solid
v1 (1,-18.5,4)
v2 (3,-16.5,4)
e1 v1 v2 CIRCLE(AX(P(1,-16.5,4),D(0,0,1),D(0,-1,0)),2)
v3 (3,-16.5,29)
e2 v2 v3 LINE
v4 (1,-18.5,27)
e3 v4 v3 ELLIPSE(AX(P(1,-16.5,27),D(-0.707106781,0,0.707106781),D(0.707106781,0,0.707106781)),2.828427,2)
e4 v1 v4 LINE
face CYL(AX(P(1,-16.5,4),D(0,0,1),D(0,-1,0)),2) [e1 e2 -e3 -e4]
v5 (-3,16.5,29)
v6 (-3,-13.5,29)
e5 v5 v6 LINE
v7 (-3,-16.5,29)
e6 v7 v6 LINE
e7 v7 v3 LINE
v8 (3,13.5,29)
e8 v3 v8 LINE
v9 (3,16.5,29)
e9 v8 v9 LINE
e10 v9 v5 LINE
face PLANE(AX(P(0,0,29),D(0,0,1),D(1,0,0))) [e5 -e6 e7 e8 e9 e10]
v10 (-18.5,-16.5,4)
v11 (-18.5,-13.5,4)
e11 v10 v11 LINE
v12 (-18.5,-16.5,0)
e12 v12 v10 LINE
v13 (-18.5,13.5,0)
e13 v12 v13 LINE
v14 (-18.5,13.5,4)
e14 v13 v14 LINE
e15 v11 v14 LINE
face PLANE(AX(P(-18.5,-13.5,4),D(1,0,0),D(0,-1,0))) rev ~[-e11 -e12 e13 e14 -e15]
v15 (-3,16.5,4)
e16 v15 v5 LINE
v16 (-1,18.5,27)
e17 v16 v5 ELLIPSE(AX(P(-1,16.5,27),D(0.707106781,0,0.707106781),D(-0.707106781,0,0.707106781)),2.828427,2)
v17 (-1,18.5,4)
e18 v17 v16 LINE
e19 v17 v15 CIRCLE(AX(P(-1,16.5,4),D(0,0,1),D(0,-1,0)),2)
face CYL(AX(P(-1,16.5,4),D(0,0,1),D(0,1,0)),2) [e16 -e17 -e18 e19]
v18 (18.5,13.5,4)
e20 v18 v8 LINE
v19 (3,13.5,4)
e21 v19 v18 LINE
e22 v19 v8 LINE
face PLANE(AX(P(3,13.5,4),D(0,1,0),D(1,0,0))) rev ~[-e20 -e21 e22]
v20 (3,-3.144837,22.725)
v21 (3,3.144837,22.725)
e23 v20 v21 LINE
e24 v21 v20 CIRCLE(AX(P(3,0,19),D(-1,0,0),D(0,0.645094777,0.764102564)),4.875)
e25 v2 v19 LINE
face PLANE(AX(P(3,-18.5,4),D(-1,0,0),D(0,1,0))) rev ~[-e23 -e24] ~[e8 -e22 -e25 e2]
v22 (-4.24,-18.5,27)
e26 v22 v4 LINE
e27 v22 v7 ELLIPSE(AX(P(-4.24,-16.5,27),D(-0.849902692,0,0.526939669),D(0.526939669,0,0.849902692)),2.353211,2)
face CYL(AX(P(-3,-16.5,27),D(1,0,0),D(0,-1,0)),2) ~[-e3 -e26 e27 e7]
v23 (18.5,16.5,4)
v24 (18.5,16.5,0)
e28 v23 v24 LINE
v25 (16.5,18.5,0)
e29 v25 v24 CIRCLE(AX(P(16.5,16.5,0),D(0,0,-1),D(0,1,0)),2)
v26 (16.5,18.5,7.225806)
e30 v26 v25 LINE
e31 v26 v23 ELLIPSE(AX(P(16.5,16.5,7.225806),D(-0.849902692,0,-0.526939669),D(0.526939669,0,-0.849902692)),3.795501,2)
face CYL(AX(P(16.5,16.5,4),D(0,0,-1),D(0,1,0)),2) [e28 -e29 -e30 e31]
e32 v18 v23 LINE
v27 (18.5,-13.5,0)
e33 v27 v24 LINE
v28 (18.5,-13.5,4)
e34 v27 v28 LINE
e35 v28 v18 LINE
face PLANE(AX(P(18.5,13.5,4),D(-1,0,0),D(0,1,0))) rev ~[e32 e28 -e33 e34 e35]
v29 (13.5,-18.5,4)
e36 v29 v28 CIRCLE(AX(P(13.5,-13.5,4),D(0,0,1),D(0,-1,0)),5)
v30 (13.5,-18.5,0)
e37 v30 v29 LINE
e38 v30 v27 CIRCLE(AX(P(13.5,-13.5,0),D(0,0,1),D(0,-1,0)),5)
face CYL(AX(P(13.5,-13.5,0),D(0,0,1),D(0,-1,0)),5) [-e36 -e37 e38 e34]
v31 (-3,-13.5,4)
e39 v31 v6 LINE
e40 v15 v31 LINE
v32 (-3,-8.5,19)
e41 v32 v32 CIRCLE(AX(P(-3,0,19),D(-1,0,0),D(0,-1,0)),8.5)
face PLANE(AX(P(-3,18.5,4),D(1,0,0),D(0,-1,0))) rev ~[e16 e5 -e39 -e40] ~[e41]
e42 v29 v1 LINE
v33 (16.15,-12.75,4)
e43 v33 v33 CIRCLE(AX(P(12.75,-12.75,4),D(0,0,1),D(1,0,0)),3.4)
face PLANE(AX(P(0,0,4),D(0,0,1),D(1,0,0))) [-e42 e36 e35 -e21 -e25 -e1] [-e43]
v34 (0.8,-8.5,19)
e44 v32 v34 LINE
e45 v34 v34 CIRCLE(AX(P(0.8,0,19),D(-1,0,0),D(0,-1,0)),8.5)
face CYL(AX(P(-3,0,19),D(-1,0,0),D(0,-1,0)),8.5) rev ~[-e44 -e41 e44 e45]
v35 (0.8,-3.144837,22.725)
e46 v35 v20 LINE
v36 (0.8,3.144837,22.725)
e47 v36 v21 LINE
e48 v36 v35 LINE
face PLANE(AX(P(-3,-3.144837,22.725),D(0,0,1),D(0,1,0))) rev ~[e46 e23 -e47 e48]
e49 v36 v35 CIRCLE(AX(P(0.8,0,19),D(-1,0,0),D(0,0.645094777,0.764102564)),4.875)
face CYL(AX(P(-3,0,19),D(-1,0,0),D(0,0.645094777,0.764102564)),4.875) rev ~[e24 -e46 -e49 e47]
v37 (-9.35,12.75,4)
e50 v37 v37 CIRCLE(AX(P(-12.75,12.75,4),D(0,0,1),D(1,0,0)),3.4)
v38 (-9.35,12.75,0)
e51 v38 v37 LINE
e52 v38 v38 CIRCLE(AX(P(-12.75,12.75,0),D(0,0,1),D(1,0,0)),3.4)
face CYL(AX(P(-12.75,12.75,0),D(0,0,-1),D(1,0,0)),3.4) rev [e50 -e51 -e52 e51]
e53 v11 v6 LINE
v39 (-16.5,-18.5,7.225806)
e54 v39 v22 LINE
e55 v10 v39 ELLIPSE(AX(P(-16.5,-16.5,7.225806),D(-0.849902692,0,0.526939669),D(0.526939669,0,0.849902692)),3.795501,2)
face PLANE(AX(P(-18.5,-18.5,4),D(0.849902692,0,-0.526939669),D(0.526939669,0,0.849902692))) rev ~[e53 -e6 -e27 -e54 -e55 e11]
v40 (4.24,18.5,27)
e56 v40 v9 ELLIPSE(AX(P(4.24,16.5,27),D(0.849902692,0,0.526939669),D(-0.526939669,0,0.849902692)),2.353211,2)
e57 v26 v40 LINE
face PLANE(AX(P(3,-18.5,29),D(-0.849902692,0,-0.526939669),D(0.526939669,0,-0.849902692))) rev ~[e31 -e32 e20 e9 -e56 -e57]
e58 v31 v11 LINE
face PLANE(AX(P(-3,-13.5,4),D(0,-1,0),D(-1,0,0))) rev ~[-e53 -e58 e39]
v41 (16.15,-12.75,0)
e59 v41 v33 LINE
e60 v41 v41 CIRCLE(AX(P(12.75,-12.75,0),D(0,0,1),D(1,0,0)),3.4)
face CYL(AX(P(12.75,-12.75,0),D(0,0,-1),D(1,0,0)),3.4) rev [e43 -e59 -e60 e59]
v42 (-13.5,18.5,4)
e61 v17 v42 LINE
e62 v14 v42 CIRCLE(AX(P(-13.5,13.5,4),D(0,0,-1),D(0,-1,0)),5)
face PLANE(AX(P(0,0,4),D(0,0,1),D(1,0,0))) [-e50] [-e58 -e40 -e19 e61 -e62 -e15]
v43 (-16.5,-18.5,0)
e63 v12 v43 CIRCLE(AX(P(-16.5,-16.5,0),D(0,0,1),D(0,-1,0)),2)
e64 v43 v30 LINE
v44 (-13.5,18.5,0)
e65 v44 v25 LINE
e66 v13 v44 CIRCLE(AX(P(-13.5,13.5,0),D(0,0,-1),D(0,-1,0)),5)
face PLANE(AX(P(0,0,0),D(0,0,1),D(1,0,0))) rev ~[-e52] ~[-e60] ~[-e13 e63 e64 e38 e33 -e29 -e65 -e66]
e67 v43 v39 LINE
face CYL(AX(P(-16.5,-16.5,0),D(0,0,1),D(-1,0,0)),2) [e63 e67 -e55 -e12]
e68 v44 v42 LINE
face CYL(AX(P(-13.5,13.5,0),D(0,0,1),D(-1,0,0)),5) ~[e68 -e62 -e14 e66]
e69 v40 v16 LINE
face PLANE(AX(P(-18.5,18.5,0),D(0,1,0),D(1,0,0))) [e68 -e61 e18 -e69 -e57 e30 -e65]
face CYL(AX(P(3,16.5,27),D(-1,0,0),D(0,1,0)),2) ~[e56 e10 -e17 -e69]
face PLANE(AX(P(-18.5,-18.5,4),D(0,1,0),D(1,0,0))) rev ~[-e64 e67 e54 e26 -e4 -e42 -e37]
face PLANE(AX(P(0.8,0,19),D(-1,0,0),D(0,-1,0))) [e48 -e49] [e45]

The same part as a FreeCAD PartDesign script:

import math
import FreeCAD as App
import Part
import Sketcher

V = App.Vector


def edges_at(feature, points):
    """Names of the edges that pass closest to the given points."""
    edges = feature.Shape.Edges
    near = lambda p: min(range(len(edges)), key=lambda i: edges[i].distToShape(Part.Vertex(*p))[0])
    return sorted({f"Edge{near(p) + 1}" for p in points})


def add_polygon(sketch, points):
    """Adds a closed chain of lines whose ends are joined by coincident constraints."""
    first, n = sketch.GeometryCount, len(points)
    for a, b in zip(points, points[1:] + points[:1]):
        sketch.addGeometry(Part.LineSegment(App.Vector(*a, 0), App.Vector(*b, 0)), False)
    for i in range(n):
        sketch.addConstraint(Sketcher.Constraint("Coincident", first + i, 2, first + (i + 1) % n, 1))

doc = App.newDocument("Part")
params = doc.addObject("Spreadsheet::Sheet", "Params")
for row, (alias, value) in enumerate([
    ("sketch1_diameter", "6.8 mm"),
    ("sketch1_width", "37 mm"),
    ("pad1_length", "4 mm"),
    ("sketch2_height", "5 mm"),
    ("sketch2_height2", "32 mm"),
    ("sketch2_width", "21.5 mm"),
    ("sketch2_width2", "15.5 mm"),
    ("pad2_length", "25 mm"),
    ("sketch3_height", "25 mm"),
    ("sketch3_width", "15.5 mm"),
    ("sketch5_diameter", "17 mm"),
    ("pocket3_length", "3.8 mm"),
    ("fillet_radius", "5 mm"),
    ("fillet2_radius", "2 mm"),
], start=1):
    params.set(f"A{row}", alias)
    params.set(f"B{row}", "=" + value)
    params.setAlias(f"B{row}", alias)

body = doc.addObject("PartDesign::Body", "Body")

sketch1 = doc.addObject("Sketcher::SketchObject", "Sketch")
body.addObject(sketch1)
sketch1.AttachmentSupport = (doc.XY_Plane, [""])
sketch1.MapMode = "FlatFace"
add_polygon(sketch1, [(-18.5, 18.5), (-18.5, -18.5), (18.5, -18.5), (18.5, 18.5)])
sketch1.addGeometry(Part.Circle(V(12.75, -12.75, 0), V(0, 0, 1), 3.4), False)
sketch1.addGeometry(Part.Circle(V(-12.75, 12.75, 0), V(0, 0, 1), 3.4), False)
sketch1.addConstraint(Sketcher.Constraint("Vertical", 0))
sketch1.addConstraint(Sketcher.Constraint("Horizontal", 1))
sketch1.addConstraint(Sketcher.Constraint("Vertical", 2))
sketch1.addConstraint(Sketcher.Constraint("Horizontal", 3))
sketch1.addConstraint(Sketcher.Constraint("Equal", 4, 5))
sketch1.addConstraint(Sketcher.Constraint("Symmetric", 4, 3, 5, 3, -1, 1))
sketch1.addConstraint(Sketcher.Constraint("Symmetric", 0, 2, 2, 2, -1, 1))
sketch1.addConstraint(Sketcher.Constraint("Equal", 3, 0))
sketch1.addConstraint(Sketcher.Constraint("Diameter", 4, 6.8))
sketch1.addConstraint(Sketcher.Constraint("DistanceX", 1, 1, 1, 2, 37.0))
sketch1.addConstraint(Sketcher.Constraint("DistanceX", 5, 3, 4, 3, 25.5))
sketch1.addConstraint(Sketcher.Constraint("DistanceY", 4, 3, 5, 3, 25.5))
sketch1.setExpression("Constraints[12]", "Params.sketch1_diameter")
sketch1.setExpression("Constraints[13]", "Params.sketch1_width")
pad1 = doc.addObject("PartDesign::Pad", "Pad")
body.addObject(pad1)
pad1.Profile = sketch1
pad1.setExpression("Length", "Params.pad1_length")

sketch2 = doc.addObject("Sketcher::SketchObject", "Sketch001")
body.addObject(sketch2)
sketch2.AttachmentSupport = (doc.XY_Plane, [""])
sketch2.MapMode = "FlatFace"
sketch2.AttachmentOffset = App.Placement(V(0, 0, 4), App.Rotation())
add_polygon(sketch2, [(-18.5, -13.5), (-18.5, -18.5), (3, -18.5), (3, 13.5), (18.5, 13.5), (18.5, 18.5), (-3, 18.5), (-3, -13.5)])
sketch2.addConstraint(Sketcher.Constraint("Vertical", 0))
sketch2.addConstraint(Sketcher.Constraint("Horizontal", 1))
sketch2.addConstraint(Sketcher.Constraint("Vertical", 2))
sketch2.addConstraint(Sketcher.Constraint("Horizontal", 3))
sketch2.addConstraint(Sketcher.Constraint("Vertical", 4))
sketch2.addConstraint(Sketcher.Constraint("Horizontal", 5))
sketch2.addConstraint(Sketcher.Constraint("Vertical", 6))
sketch2.addConstraint(Sketcher.Constraint("Horizontal", 7))
sketch2.addConstraint(Sketcher.Constraint("Symmetric", 0, 2, 4, 2, -1, 1))
sketch2.addConstraint(Sketcher.Constraint("Symmetric", 2, 2, 6, 2, -1, 1))
sketch2.addConstraint(Sketcher.Constraint("DistanceY", 0, 2, 0, 1, 5.0))
sketch2.addConstraint(Sketcher.Constraint("DistanceY", 2, 1, 2, 2, 32.0))
sketch2.addConstraint(Sketcher.Constraint("DistanceX", 1, 1, 1, 2, 21.5))
sketch2.addConstraint(Sketcher.Constraint("DistanceX", 3, 1, 3, 2, 15.5))
sketch2.setExpression("Constraints[18]", "Params.sketch2_height")
sketch2.setExpression("Constraints[19]", "Params.sketch2_height2")
sketch2.setExpression("Constraints[20]", "Params.sketch2_width")
sketch2.setExpression("Constraints[21]", "Params.sketch2_width2")
pad2 = doc.addObject("PartDesign::Pad", "Pad001")
body.addObject(pad2)
pad2.Profile = sketch2
pad2.setExpression("Length", "Params.pad2_length")

sketch3 = doc.addObject("Sketcher::SketchObject", "Sketch002")
body.addObject(sketch3)
sketch3.AttachmentSupport = (doc.XZ_Plane, [""])
sketch3.MapMode = "FlatFace"
sketch3.AttachmentOffset = App.Placement(V(0, 0, 18.5), App.Rotation())
add_polygon(sketch3, [(-3, 29), (-18.5, 29), (-18.5, 4)])
add_polygon(sketch3, [(18.5, 29), (3, 29), (18.5, 4)])
sketch3.addConstraint(Sketcher.Constraint("Horizontal", 0))
sketch3.addConstraint(Sketcher.Constraint("Vertical", 1))
sketch3.addConstraint(Sketcher.Constraint("Horizontal", 3))
sketch3.addConstraint(Sketcher.Constraint("Vertical", 5))
sketch3.addConstraint(Sketcher.Constraint("Symmetric", 2, 2, 3, 2, -2))
sketch3.addConstraint(Sketcher.Constraint("Symmetric", 1, 2, 4, 2, -2))
sketch3.addConstraint(Sketcher.Constraint("DistanceY", 1, 2, 1, 1, 25.0))
sketch3.addConstraint(Sketcher.Constraint("DistanceX", 0, 2, 0, 1, 15.5))
sketch3.addConstraint(Sketcher.Constraint("DistanceY", -1, 1, 0, 2, 29.0))
sketch3.addConstraint(Sketcher.Constraint("DistanceX", 2, 2, -1, 1, 3.0))
sketch3.setExpression("Constraints[12]", "Params.sketch3_height")
sketch3.setExpression("Constraints[13]", "Params.sketch3_width")
pocket1 = doc.addObject("PartDesign::Pocket", "Pocket")
body.addObject(pocket1)
pocket1.Profile = sketch3
pocket1.Type = "ThroughAll"

sketch4 = doc.addObject("Sketcher::SketchObject", "Sketch003")
body.addObject(sketch4)
sketch4.AttachmentSupport = (doc.YZ_Plane, [""])
sketch4.MapMode = "FlatFace"
sketch4.AttachmentOffset = App.Placement(V(0, 0, -3), App.Rotation())
sketch4.addGeometry(Part.LineSegment(V(-3.144837, 22.725, 0), V(3.144837, 22.725, 0)), False)
sketch4.addGeometry(Part.ArcOfCircle(Part.Circle(V(0, 19, 0), V(0, 0, 1), 4.875), math.radians(130.172782), math.radians(409.827218)), False)
sketch4.addConstraint(Sketcher.Constraint("Coincident", 0, 1, 1, 1))
sketch4.addConstraint(Sketcher.Constraint("Coincident", 1, 2, 0, 2))
sketch4.addConstraint(Sketcher.Constraint("Horizontal", 0))
sketch4.addConstraint(Sketcher.Constraint("PointOnObject", 1, 3, -2))
sketch4.addConstraint(Sketcher.Constraint("DistanceY", -1, 1, 1, 3, 19.0))
sketch4.addConstraint(Sketcher.Constraint("Radius", 1, 4.875))
sketch4.addConstraint(Sketcher.Constraint("DistanceY", -1, 1, 0, 1, 22.725))
pocket2 = doc.addObject("PartDesign::Pocket", "Pocket001")
body.addObject(pocket2)
pocket2.Profile = sketch4
pocket2.Type = "ThroughAll"
pocket2.Reversed = True

sketch5 = doc.addObject("Sketcher::SketchObject", "Sketch004")
body.addObject(sketch5)
sketch5.AttachmentSupport = (doc.YZ_Plane, [""])
sketch5.MapMode = "FlatFace"
sketch5.AttachmentOffset = App.Placement(V(0, 0, -3), App.Rotation())
sketch5.addGeometry(Part.Circle(V(0, 19, 0), V(0, 0, 1), 8.5), False)
sketch5.addConstraint(Sketcher.Constraint("PointOnObject", 0, 3, -2))
sketch5.addConstraint(Sketcher.Constraint("Diameter", 0, 17.0))
sketch5.addConstraint(Sketcher.Constraint("DistanceY", -1, 1, 0, 3, 19.0))
sketch5.setExpression("Constraints[1]", "Params.sketch5_diameter")
pocket3 = doc.addObject("PartDesign::Pocket", "Pocket002")
body.addObject(pocket3)
pocket3.Profile = sketch5
pocket3.setExpression("Length", "Params.pocket3_length")
pocket3.Reversed = True
doc.recompute()

fillet = doc.addObject("PartDesign::Fillet", "Fillet")
body.addObject(fillet)
fillet.Base = (pocket3, edges_at(pocket3, [(-18.5, 18.5, 2), (18.5, -18.5, 2)]))
fillet.setExpression("Radius", "Params.fillet_radius")
doc.recompute()

fillet2 = doc.addObject("PartDesign::Fillet", "Fillet001")
body.addObject(fillet2)
fillet2.Base = (fillet, edges_at(fillet, [
    (0, -18.5, 29),
    (0, 18.5, 29),
    (-18.5, -18.5, 2),
    (18.5, 18.5, 2),
    (-3, 18.5, 16.5),
    (3, -18.5, 16.5),
]))
fillet2.setExpression("Radius", "Params.fillet2_radius")

doc.recompute()
